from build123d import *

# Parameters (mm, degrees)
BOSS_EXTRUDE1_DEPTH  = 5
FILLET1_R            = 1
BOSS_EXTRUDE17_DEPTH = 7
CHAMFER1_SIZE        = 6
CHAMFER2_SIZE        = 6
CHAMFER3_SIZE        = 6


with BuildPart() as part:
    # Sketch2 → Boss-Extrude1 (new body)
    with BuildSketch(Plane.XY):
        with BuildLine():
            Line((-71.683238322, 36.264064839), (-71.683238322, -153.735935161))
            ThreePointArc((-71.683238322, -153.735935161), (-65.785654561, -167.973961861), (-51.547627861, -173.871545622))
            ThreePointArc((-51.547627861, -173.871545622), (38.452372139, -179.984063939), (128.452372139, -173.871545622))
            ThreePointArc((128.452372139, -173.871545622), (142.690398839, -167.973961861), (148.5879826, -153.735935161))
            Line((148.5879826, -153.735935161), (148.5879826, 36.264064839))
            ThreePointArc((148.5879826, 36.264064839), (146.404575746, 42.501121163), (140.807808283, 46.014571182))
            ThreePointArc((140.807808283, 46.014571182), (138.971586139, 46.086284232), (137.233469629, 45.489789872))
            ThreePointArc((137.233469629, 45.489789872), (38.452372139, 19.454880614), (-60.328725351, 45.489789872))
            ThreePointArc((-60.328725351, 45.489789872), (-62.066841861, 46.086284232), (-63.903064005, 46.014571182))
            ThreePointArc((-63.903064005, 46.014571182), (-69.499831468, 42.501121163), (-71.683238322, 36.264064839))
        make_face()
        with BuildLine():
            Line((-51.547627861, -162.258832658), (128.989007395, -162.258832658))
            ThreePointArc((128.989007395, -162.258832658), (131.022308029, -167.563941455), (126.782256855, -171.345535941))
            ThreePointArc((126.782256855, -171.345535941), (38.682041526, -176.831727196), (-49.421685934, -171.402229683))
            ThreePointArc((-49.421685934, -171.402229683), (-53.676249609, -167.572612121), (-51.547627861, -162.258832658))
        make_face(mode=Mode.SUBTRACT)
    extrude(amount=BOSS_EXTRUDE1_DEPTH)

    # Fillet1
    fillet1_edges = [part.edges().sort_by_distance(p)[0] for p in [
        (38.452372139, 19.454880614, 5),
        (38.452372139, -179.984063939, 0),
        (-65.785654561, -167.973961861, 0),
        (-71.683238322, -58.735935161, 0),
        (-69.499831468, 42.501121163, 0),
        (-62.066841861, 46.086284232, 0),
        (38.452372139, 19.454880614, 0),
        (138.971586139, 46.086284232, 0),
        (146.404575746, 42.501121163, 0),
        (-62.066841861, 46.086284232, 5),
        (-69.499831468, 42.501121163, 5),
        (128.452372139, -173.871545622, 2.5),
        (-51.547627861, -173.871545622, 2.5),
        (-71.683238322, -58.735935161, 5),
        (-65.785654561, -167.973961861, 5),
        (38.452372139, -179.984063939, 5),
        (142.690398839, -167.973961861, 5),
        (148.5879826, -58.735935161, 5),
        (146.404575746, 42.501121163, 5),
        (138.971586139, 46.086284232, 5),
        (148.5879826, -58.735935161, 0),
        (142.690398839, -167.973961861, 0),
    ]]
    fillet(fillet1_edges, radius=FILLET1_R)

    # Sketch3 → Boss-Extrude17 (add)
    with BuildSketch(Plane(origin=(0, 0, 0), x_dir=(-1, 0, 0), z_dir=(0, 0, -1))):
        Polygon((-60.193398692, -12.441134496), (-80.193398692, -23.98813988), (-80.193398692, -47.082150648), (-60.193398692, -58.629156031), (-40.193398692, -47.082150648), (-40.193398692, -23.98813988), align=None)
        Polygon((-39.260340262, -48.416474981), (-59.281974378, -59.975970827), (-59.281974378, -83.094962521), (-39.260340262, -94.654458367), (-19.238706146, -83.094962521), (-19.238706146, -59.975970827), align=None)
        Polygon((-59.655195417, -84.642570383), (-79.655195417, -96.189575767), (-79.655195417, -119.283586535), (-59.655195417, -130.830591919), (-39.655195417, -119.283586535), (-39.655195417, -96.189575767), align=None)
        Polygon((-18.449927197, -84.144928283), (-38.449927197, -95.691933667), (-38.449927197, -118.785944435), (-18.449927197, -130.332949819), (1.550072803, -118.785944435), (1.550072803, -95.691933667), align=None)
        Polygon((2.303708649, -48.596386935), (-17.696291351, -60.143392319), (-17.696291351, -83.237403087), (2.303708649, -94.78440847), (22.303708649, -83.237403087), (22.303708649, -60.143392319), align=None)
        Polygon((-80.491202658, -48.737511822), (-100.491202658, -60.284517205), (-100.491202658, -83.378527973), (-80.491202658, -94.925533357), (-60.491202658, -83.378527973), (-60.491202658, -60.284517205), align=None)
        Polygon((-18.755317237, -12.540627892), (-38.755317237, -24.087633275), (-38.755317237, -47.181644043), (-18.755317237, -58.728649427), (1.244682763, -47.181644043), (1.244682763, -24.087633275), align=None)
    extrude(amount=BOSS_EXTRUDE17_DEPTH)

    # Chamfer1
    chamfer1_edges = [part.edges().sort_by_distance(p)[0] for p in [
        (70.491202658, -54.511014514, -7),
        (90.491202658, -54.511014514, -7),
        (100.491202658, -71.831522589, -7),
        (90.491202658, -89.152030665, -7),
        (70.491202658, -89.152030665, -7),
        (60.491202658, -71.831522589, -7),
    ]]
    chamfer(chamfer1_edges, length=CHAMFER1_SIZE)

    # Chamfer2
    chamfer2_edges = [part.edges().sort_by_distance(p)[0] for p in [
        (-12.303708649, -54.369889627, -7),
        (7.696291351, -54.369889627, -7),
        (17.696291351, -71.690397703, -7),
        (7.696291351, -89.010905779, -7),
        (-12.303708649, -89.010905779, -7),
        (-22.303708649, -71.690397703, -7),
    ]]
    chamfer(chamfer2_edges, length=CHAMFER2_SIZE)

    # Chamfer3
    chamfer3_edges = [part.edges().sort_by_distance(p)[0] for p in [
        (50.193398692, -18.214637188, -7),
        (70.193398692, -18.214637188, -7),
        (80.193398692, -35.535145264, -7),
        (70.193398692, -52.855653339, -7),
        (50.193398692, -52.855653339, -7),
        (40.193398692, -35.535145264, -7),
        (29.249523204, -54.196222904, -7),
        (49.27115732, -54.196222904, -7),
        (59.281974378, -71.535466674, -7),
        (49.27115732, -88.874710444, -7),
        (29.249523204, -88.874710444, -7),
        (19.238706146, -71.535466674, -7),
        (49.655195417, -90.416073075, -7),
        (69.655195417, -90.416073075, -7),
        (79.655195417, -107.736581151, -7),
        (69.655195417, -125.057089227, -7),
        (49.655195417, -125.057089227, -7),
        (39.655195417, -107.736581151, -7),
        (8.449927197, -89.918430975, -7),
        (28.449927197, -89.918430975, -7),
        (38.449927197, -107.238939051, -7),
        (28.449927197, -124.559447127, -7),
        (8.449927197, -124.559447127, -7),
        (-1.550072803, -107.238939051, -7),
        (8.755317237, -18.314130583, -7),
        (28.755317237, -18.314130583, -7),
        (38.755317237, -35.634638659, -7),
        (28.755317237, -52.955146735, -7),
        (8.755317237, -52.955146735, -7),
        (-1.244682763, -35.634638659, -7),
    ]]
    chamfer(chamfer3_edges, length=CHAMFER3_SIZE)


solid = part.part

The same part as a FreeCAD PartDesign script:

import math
import FreeCAD as App
import Part
import Sketcher
from FreeCAD import Vector
Q = App.Units.Quantity


def edges_at(feature, points):
    """Names of the edges that pass closest to the given points."""
    edges = feature.Shape.Edges
    near = lambda p: min(range(len(edges)), key=lambda i: edges[i].distToShape(Part.Vertex(*p))[0])
    return sorted({f"Edge{near(p) + 1}" for p in points})


def add_polygon(sketch, points):
    """Adds a closed chain of lines whose ends are joined by coincident constraints."""
    first, n = sketch.GeometryCount, len(points)
    for a, b in zip(points, points[1:] + points[:1]):
        sketch.addGeometry(Part.LineSegment(App.Vector(*a, 0), App.Vector(*b, 0)), False)
    for i in range(n):
        sketch.addConstraint(Sketcher.Constraint("Coincident", first + i, 2, first + (i + 1) % n, 1))

doc = App.newDocument("Part")
body = doc.addObject("PartDesign::Body", "Body")

sketch1 = doc.addObject("Sketcher::SketchObject", "Sketch")
body.addObject(sketch1)
sketch1.AttachmentSupport = (doc.XY_Plane, [""])
sketch1.MapMode = "FlatFace"
sketch1.addGeometry([
    Part.LineSegment(Vector(-71.7, 36.3, 0), Vector(-71.7, -153.7, 0)),
    Part.ArcOfCircle(Part.Circle(Vector(-51.5, -153.7, 0), Vector(0, 0, 1), 20.1), math.radians(-180), math.radians(-90)),
    Part.ArcOfCircle(Part.Circle(Vector(38.5, 485.6, 0), Vector(0, 0, 1), 665.6), math.radians(-97.77), math.radians(-82.23)),
    Part.ArcOfCircle(Part.Circle(Vector(128.5, -153.7, 0), Vector(0, 0, 1), 20.1), math.radians(-90), math.radians(0)),
    Part.LineSegment(Vector(148.6, -153.7, 0), Vector(148.6, 36.3, 0)),
    Part.ArcOfCircle(Part.Circle(Vector(138.6, 36.3, 0), Vector(0, 0, 1), 10), math.radians(0), math.radians(77)),
    Part.ArcOfCircle(Part.Circle(Vector(139.7, 41.1, 0), Vector(0, 0, 1), 5), math.radians(77), math.radians(120)),
    Part.ArcOfCircle(Part.Circle(Vector(38.5, 219.9, 0), Vector(0, 0, 1), 200.4), math.radians(-120), math.radians(-60)),
    Part.ArcOfCircle(Part.Circle(Vector(-62.8, 41.1, 0), Vector(0, 0, 1), 5), math.radians(60), math.radians(103)),
    Part.ArcOfCircle(Part.Circle(Vector(-61.7, 36.3, 0), Vector(0, 0, 1), 10), math.radians(103), math.radians(180)),
    Part.ArcOfCircle(Part.Circle(Vector(-48.8, -166.4, 0), Vector(0, 0, 1), 5), math.radians(123), math.radians(263)),
    Part.LineSegment(Vector(-51.5, -162.3, 0), Vector(129, -162.3, 0)),
    Part.ArcOfCircle(Part.Circle(Vector(126.2, -166.4, 0), Vector(0, 0, 1), 5), math.radians(-83), math.radians(56)),
    Part.ArcOfCircle(Part.Circle(Vector(38.5, 537, 0), Vector(0, 0, 1), 713.8), math.radians(-97.07), math.radians(-82.89)),
], False)
sketch1.addConstraint([
    Sketcher.Constraint("Tangent", 0, 2, 1, 1),
    Sketcher.Constraint("Coincident", 1, 2, 2, 1),
    Sketcher.Constraint("Coincident", 2, 2, 3, 1),
    Sketcher.Constraint("Tangent", 3, 2, 4, 1),
    Sketcher.Constraint("Tangent", 4, 2, 5, 1),
    Sketcher.Constraint("Tangent", 5, 2, 6, 1),
    Sketcher.Constraint("Tangent", 6, 2, 7, 2),
    Sketcher.Constraint("Tangent", 7, 1, 8, 1),
    Sketcher.Constraint("Tangent", 8, 2, 9, 1),
    Sketcher.Constraint("Tangent", 9, 2, 0, 1),
    Sketcher.Constraint("Coincident", 10, 1, 11, 1),
    Sketcher.Constraint("Coincident", 11, 2, 12, 2),
    Sketcher.Constraint("Tangent", 12, 1, 13, 2),
    Sketcher.Constraint("Tangent", 13, 1, 10, 2),
    Sketcher.Constraint("Vertical", 0),
    Sketcher.Constraint("Vertical", 4),
    Sketcher.Constraint("Horizontal", 11),
    Sketcher.Constraint("Equal", 1, 3),
    Sketcher.Constraint("Equal", 6, 8),
    Sketcher.Constraint("Equal", 5, 9),
    Sketcher.Constraint("Equal", 8, 10),
    Sketcher.Constraint("Equal", 10, 12),
    Sketcher.Constraint("Horizontal", 1, 3, 3, 3),
    Sketcher.Constraint("Horizontal", 6, 3, 8, 3),
    Sketcher.Constraint("Horizontal", 5, 3, 9, 3),
    Sketcher.Constraint("Vertical", 2, 3, 7, 3),
    Sketcher.Constraint("Vertical", 7, 3, 13, 3),
    Sketcher.Constraint("Vertical", 3, 3, 2, 2),
    Sketcher.Constraint("Vertical", 1, 2, 10, 1),
    Sketcher.Constraint("Radius", 5, Q("10 mm")),
    Sketcher.Constraint("Radius", 6, Q("5 mm")),
    Sketcher.Constraint("DistanceY", 0, 2, 0, 1, Q("190 mm")),
    Sketcher.Constraint("DistanceX", 1, 3, 2, 3, Q("90 mm")),
    Sketcher.Constraint("Radius", 1, Q("20.13561 mm")),
    Sketcher.Constraint("Radius", 2, Q("665.630961 mm")),
    Sketcher.Constraint("Radius", 7, Q("200.414021 mm")),
    Sketcher.Constraint("Radius", 13, Q("713.811652 mm")),
    Sketcher.Constraint("DistanceY", -1, 1, 7, 3, Q("219.868902 mm")),
    Sketcher.Constraint("DistanceY", 12, 1, 3, 3, Q("17.609601 mm")),
    Sketcher.Constraint("DistanceX", 11, 1, 11, 2, Q("180.536635 mm")),
    Sketcher.Constraint("DistanceY", -1, 1, 6, 3, Q("41.139318 mm")),
    Sketcher.Constraint("DistanceX", 8, 3, -1, 1, Q("62.793151 mm")),
    Sketcher.Constraint("DistanceX", 10, 3, -1, 1, Q("48.806159 mm")),
])
pad1 = doc.addObject("PartDesign::Pad", "Pad")
body.addObject(pad1)
pad1.Profile = sketch1
pad1.Length = 5
doc.recompute()

fillet = doc.addObject("PartDesign::Fillet", "Fillet")
body.addObject(fillet)
fillet.Base = (pad1, edges_at(pad1, [
    (38.452, 19.455, 5),
    (38.452, -179.984, 0),
    (-65.786, -167.974, 0),
    (-71.683, -58.736, 0),
    (-69.5, 42.501, 0),
    (-62.067, 46.086, 0),
    (38.452, 19.455, 0),
    (138.972, 46.086, 0),
    (146.405, 42.501, 0),
    (-62.067, 46.086, 5),
    (-69.5, 42.501, 5),
    (128.452, -173.872, 2.5),
    (-51.548, -173.872, 2.5),
    (-71.683, -58.736, 5),
    (-65.786, -167.974, 5),
    (38.452, -179.984, 5),
    (142.69, -167.974, 5),
    (148.588, -58.736, 5),
    (146.405, 42.501, 5),
    (138.972, 46.086, 5),
    (148.588, -58.736, 0),
    (142.69, -167.974, 0),
]))
fillet.Radius = 1

sketch2 = doc.addObject("Sketcher::SketchObject", "Sketch001")
body.addObject(sketch2)
sketch2.AttachmentSupport = (doc.XY_Plane, [""])
sketch2.MapMode = "FlatFace"
add_polygon(sketch2, [(60, -12), (80, -24), (80, -47), (60, -59), (40, -47), (40, -24)])
add_polygon(sketch2, [(39, -48), (59, -60), (59, -83), (39, -95), (19, -83), (19, -60)])
add_polygon(sketch2, [(60, -85), (80, -96), (80, -119), (60, -131), (40, -119), (40, -96)])
add_polygon(sketch2, [(18, -84), (38, -96), (38, -119), (18, -130), (-2, -119), (-2, -96)])
add_polygon(sketch2, [(-2, -49), (18, -60), (18, -83), (-2, -95), (-22, -83), (-22, -60)])
add_polygon(sketch2, [(80, -49), (100, -60), (100, -83), (80, -95), (60, -83), (60, -60)])
add_polygon(sketch2, [(19, -13), (39, -24), (39, -47), (19, -59), (-1, -47), (-1, -24)])
sketch2.addConstraint([
    Sketcher.Constraint("Vertical", 1),
    Sketcher.Constraint("Vertical", 4),
    Sketcher.Constraint("Vertical", 7),
    Sketcher.Constraint("Vertical", 10),
    Sketcher.Constraint("Vertical", 13),
    Sketcher.Constraint("Vertical", 16),
    Sketcher.Constraint("Vertical", 19),
    Sketcher.Constraint("Vertical", 22),
    Sketcher.Constraint("Vertical", 25),
    Sketcher.Constraint("Vertical", 28),
    Sketcher.Constraint("Vertical", 31),
    Sketcher.Constraint("Vertical", 34),
    Sketcher.Constraint("Vertical", 37),
    Sketcher.Constraint("Vertical", 40),
    Sketcher.Constraint("Parallel", 0, 3),
    Sketcher.Constraint("Parallel", 2, 5),
    Sketcher.Constraint("Parallel", 3, 6),
    Sketcher.Constraint("Parallel", 5, 8),
    Sketcher.Constraint("Parallel", 6, 9),
    Sketcher.Constraint("Parallel", 8, 11),
    Sketcher.Constraint("Parallel", 9, 12),
    Sketcher.Constraint("Parallel", 11, 14),
    Sketcher.Constraint("Parallel", 12, 15),
    Sketcher.Constraint("Parallel", 14, 17),
    Sketcher.Constraint("Parallel", 15, 18),
    Sketcher.Constraint("Parallel", 17, 20),
    Sketcher.Constraint("Parallel", 18, 21),
    Sketcher.Constraint("Parallel", 20, 23),
    Sketcher.Constraint("Parallel", 21, 24),
    Sketcher.Constraint("Parallel", 23, 26),
    Sketcher.Constraint("Parallel", 24, 27),
    Sketcher.Constraint("Parallel", 26, 29),
    Sketcher.Constraint("Parallel", 27, 30),
    Sketcher.Constraint("Parallel", 29, 32),
    Sketcher.Constraint("Parallel", 30, 33),
    Sketcher.Constraint("Parallel", 32, 35),
    Sketcher.Constraint("Parallel", 33, 36),
    Sketcher.Constraint("Parallel", 35, 38),
    Sketcher.Constraint("Parallel", 36, 39),
    Sketcher.Constraint("Parallel", 38, 41),
    Sketcher.Constraint("Horizontal", 1, 2, 3, 2),
    Sketcher.Constraint("Horizontal", 0, 2, 4, 2),
    Sketcher.Constraint("Horizontal", 7, 2, 9, 2),
    Sketcher.Constraint("Horizontal", 6, 2, 10, 2),
    Sketcher.Constraint("Horizontal", 13, 2, 15, 2),
    Sketcher.Constraint("Horizontal", 12, 2, 16, 2),
    Sketcher.Constraint("Horizontal", 19, 2, 21, 2),
    Sketcher.Constraint("Horizontal", 18, 2, 22, 2),
    Sketcher.Constraint("Horizontal", 25, 2, 27, 2),
    Sketcher.Constraint("Horizontal", 24, 2, 28, 2),
    Sketcher.Constraint("Horizontal", 31, 2, 33, 2),
    Sketcher.Constraint("Horizontal", 30, 2, 34, 2),
    Sketcher.Constraint("Horizontal", 37, 2, 39, 2),
    Sketcher.Constraint("Horizontal", 36, 2, 40, 2),
    Sketcher.Constraint("Vertical", 2, 2, 5, 2),
    Sketcher.Constraint("Equal", 4, 13),
    Sketcher.Constraint("Equal", 16, 19),
    Sketcher.Constraint("Equal", 22, 25),
    Sketcher.Constraint("Equal", 28, 31),
    Sketcher.Constraint("Equal", 34, 37),
    Sketcher.Constraint("Equal", 5, 12),
    Sketcher.Constraint("Equal", 17, 18),
    Sketcher.Constraint("Equal", 23, 24),
    Sketcher.Constraint("Equal", 29, 30),
    Sketcher.Constraint("Equal", 35, 36),
    Sketcher.Constraint("Angle", 0, Q("-30 deg")),
    Sketcher.Constraint("DistanceX", 2, 2, 1, 2, Q("20 mm")),
    Sketcher.Constraint("DistanceY", 1, 2, 1, 1, Q("23.094011 mm")),
    Sketcher.Constraint("DistanceY", 7, 2, 7, 1, Q("23.118992 mm")),
    Sketcher.Constraint("DistanceX", -1, 1, 0, 2, Q("80.193399 mm")),
    Sketcher.Constraint("DistanceY", 17, 2, 6, 2, Q("24.6666 mm")),
    Sketcher.Constraint("DistanceY", 36, 2, 5, 2, Q("11.646499 mm")),
    Sketcher.Constraint("Distance", 6, Q("23.118992 mm")),
    Sketcher.Constraint("DistanceY", 0, 2, -1, 1, Q("23.98814 mm")),
    Sketcher.Constraint("DistanceY", 6, 2, -1, 1, Q("59.975971 mm")),
    Sketcher.Constraint("DistanceX", -1, 1, 8, 2, Q("39.26034 mm")),
    Sketcher.Constraint("DistanceY", 20, 2, -1, 1, Q("130.33295 mm")),
    Sketcher.Constraint("DistanceX", -1, 1, 24, 2, Q("17.696291 mm")),
    Sketcher.Constraint("DistanceY", 26, 2, -1, 1, Q("94.784408 mm")),
    Sketcher.Constraint("DistanceY", 35, 2, -1, 1, Q("48.737512 mm")),
    Sketcher.Constraint("DistanceX", 7, 2, 12, 2, Q("20.373221 mm")),
    Sketcher.Constraint("DistanceX", 18, 2, 16, 2, Q("1.205268 mm")),
    Sketcher.Constraint("DistanceX", 6, 2, 30, 2, Q("41.209228 mm")),
    Sketcher.Constraint("DistanceX", 36, 2, 4, 2, Q("1.438081 mm")),
])
pad2 = doc.addObject("PartDesign::Pad", "Pad001")
body.addObject(pad2)
pad2.Profile = sketch2
pad2.Length = 7
pad2.Reversed = True
doc.recompute()

chamfer = doc.addObject("PartDesign::Chamfer", "Chamfer")
body.addObject(chamfer)
chamfer.Base = (pad2, edges_at(pad2, [
    (70.491, -54.511, -7),
    (90.491, -54.511, -7),
    (100.491, -71.832, -7),
    (90.491, -89.152, -7),
    (70.491, -89.152, -7),
    (60.491, -71.832, -7),
]))
chamfer.Size = 6
doc.recompute()

chamfer2 = doc.addObject("PartDesign::Chamfer", "Chamfer001")
body.addObject(chamfer2)
chamfer2.Base = (chamfer, edges_at(chamfer, [
    (-12.304, -54.37, -7),
    (7.696, -54.37, -7),
    (17.696, -71.69, -7),
    (7.696, -89.011, -7),
    (-12.304, -89.011, -7),
    (-22.304, -71.69, -7),
]))
chamfer2.Size = 6
doc.recompute()

chamfer3 = doc.addObject("PartDesign::Chamfer", "Chamfer002")
body.addObject(chamfer3)
chamfer3.Base = (chamfer2, edges_at(chamfer2, [
    (50.193, -18.215, -7),
    (70.193, -18.215, -7),
    (80.193, -35.535, -7),
    (70.193, -52.856, -7),
    (50.193, -52.856, -7),
    (40.193, -35.535, -7),
    (29.25, -54.196, -7),
    (49.271, -54.196, -7),
    (59.282, -71.535, -7),
    (49.271, -88.875, -7),
    (29.25, -88.875, -7),
    (19.239, -71.535, -7),
    (49.655, -90.416, -7),
    (69.655, -90.416, -7),
    (79.655, -107.737, -7),
    (69.655, -125.057, -7),
    (49.655, -125.057, -7),
    (39.655, -107.737, -7),
    (8.45, -89.918, -7),
    (28.45, -89.918, -7),
    (38.45, -107.239, -7),
    (28.45, -124.559, -7),
    (8.45, -124.559, -7),
    (-1.55, -107.239, -7),
    (8.755, -18.314, -7),
    (28.755, -18.314, -7),
    (38.755, -35.635, -7),
    (28.755, -52.955, -7),
    (8.755, -52.955, -7),
    (-1.245, -35.635, -7),
]))
chamfer3.Size = 6

doc.recompute()
